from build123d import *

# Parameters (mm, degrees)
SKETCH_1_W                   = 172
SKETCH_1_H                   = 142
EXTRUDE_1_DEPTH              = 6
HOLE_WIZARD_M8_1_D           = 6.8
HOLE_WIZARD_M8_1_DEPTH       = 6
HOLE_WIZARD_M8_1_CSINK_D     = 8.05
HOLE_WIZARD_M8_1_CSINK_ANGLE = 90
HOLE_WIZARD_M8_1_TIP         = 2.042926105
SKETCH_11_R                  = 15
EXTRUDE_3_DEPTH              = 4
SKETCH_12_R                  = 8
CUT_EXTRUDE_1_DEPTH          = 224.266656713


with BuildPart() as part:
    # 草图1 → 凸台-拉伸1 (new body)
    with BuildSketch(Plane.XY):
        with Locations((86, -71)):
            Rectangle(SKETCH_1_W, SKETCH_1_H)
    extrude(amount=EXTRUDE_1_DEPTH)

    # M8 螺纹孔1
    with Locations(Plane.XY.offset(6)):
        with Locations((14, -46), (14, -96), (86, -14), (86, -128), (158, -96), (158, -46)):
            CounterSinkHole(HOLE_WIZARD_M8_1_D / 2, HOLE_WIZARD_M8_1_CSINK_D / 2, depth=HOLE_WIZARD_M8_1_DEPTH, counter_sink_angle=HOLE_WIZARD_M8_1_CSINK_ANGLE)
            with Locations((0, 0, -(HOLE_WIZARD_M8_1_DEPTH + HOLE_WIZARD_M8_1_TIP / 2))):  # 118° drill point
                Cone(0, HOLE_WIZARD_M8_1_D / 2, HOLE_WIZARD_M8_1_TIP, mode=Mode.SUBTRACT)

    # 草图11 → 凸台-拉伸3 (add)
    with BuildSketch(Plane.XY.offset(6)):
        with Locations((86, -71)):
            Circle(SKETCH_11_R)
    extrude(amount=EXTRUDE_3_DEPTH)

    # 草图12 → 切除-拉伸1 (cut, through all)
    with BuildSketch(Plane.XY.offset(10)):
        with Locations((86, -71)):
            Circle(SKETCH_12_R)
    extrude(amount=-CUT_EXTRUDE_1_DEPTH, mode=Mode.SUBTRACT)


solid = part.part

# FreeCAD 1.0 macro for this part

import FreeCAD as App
import Part
import Sketcher

V = App.Vector

doc = App.newDocument("Part")
body = doc.addObject("PartDesign::Body", "Body")

sketch1 = doc.addObject("Sketcher::SketchObject", "Sketch")
body.addObject(sketch1)
sketch1.AttachmentSupport = (doc.XY_Plane, [""])
sketch1.MapMode = "FlatFace"
sketch1.addGeometry([
    Part.LineSegment(V(0, 0, 0), V(0, -142, 0)),
    Part.LineSegment(V(0, -142, 0), V(172, -142, 0)),
    Part.LineSegment(V(172, -142, 0), V(172, 0, 0)),
    Part.LineSegment(V(172, 0, 0), V(0, 0, 0)),
], False)
sketch1.addConstraint([
    Sketcher.Constraint("Coincident", 0, 2, 1, 1),
    Sketcher.Constraint("Coincident", 1, 2, 2, 1),
    Sketcher.Constraint("Coincident", 2, 2, 3, 1),
    Sketcher.Constraint("Coincident", 3, 2, 0, 1),
    Sketcher.Constraint("Vertical", 0),
    Sketcher.Constraint("Horizontal", 1),
    Sketcher.Constraint("Vertical", 2),
    Sketcher.Constraint("Horizontal", 3),
    Sketcher.Constraint("Coincident", 3, 2, -1, 1),
    Sketcher.Constraint("DistanceX", 1, 1, 1, 2, 172.0),
    Sketcher.Constraint("DistanceY", 0, 2, 0, 1, 142.0),
])
pad1 = doc.addObject("PartDesign::Pad", "Pad")
body.addObject(pad1)
pad1.Profile = sketch1
pad1.Length = 6

sketch2 = doc.addObject("Sketcher::SketchObject", "Sketch001")
body.addObject(sketch2)
sketch2.AttachmentSupport = (doc.XY_Plane, [""])
sketch2.MapMode = "FlatFace"
sketch2.AttachmentOffset = App.Placement(V(0, 0, 6), App.Rotation())
sketch2.addGeometry([
    Part.Circle(V(14, -46, 0), V(0, 0, 1), 3.4),
    Part.Circle(V(14, -96, 0), V(0, 0, 1), 3.4),
    Part.Circle(V(86, -14, 0), V(0, 0, 1), 3.4),
    Part.Circle(V(86, -128, 0), V(0, 0, 1), 3.4),
    Part.Circle(V(158, -96, 0), V(0, 0, 1), 3.4),
    Part.Circle(V(158, -46, 0), V(0, 0, 1), 3.4),
], False)
sketch2.addConstraint([
    Sketcher.Constraint("Equal", 0, 1),
    Sketcher.Constraint("Equal", 1, 2),
    Sketcher.Constraint("Equal", 2, 3),
    Sketcher.Constraint("Equal", 3, 4),
    Sketcher.Constraint("Equal", 4, 5),
    Sketcher.Constraint("Horizontal", 1, 3, 4, 3),
    Sketcher.Constraint("Horizontal", 0, 3, 5, 3),
    Sketcher.Constraint("Vertical", 0, 3, 1, 3),
    Sketcher.Constraint("Vertical", 2, 3, 3, 3),
    Sketcher.Constraint("Vertical", 4, 3, 5, 3),
    Sketcher.Constraint("Diameter", 0, 6.8),
    Sketcher.Constraint("DistanceX", -1, 1, 0, 3, 14.0),
    Sketcher.Constraint("DistanceY", 0, 3, -1, 1, 46.0),
    Sketcher.Constraint("DistanceY", 1, 3, -1, 1, 96.0),
    Sketcher.Constraint("DistanceX", -1, 1, 2, 3, 86.0),
    Sketcher.Constraint("DistanceY", 2, 3, -1, 1, 14.0),
    Sketcher.Constraint("DistanceY", 3, 3, -1, 1, 128.0),
    Sketcher.Constraint("DistanceX", -1, 1, 4, 3, 158.0),
])
doc.recompute()
hole = doc.addObject("PartDesign::Hole", "Hole")
body.addObject(hole)
hole.Profile = sketch2
hole.ThreadType = "None"
hole.Diameter = 6.8
hole.DepthType = "Dimension"
hole.Depth = 6
hole.DrillPoint = "Angled"
hole.DrillPointAngle = 118
hole.HoleCutType = "Countersink"
hole.HoleCutDiameter = 8.05
hole.HoleCutCountersinkAngle = 90

sketch3 = doc.addObject("Sketcher::SketchObject", "Sketch002")
body.addObject(sketch3)
sketch3.AttachmentSupport = (doc.XY_Plane, [""])
sketch3.MapMode = "FlatFace"
sketch3.AttachmentOffset = App.Placement(V(0, 0, 6), App.Rotation())
sketch3.addGeometry(Part.Circle(V(86, -71, 0), V(0, 0, 1), 15), False)
sketch3.addConstraint([
    Sketcher.Constraint("Diameter", 0, 30.0),
    Sketcher.Constraint("DistanceX", -1, 1, 0, 3, 86.0),
    Sketcher.Constraint("DistanceY", 0, 3, -1, 1, 71.0),
])
pad2 = doc.addObject("PartDesign::Pad", "Pad001")
body.addObject(pad2)
pad2.Profile = sketch3
pad2.Length = 4

sketch4 = doc.addObject("Sketcher::SketchObject", "Sketch003")
body.addObject(sketch4)
sketch4.AttachmentSupport = (doc.XY_Plane, [""])
sketch4.MapMode = "FlatFace"
sketch4.AttachmentOffset = App.Placement(V(0, 0, 10), App.Rotation())
sketch4.addGeometry(Part.Circle(V(86, -71, 0), V(0, 0, 1), 8), False)
sketch4.addConstraint([
    Sketcher.Constraint("Diameter", 0, 16.0),
    Sketcher.Constraint("DistanceX", -1, 1, 0, 3, 86.0),
    Sketcher.Constraint("DistanceY", 0, 3, -1, 1, 71.0),
])
pocket1 = doc.addObject("PartDesign::Pocket", "Pocket")
body.addObject(pocket1)
pocket1.Profile = sketch4
pocket1.Type = "ThroughAll"

doc.recompute()
